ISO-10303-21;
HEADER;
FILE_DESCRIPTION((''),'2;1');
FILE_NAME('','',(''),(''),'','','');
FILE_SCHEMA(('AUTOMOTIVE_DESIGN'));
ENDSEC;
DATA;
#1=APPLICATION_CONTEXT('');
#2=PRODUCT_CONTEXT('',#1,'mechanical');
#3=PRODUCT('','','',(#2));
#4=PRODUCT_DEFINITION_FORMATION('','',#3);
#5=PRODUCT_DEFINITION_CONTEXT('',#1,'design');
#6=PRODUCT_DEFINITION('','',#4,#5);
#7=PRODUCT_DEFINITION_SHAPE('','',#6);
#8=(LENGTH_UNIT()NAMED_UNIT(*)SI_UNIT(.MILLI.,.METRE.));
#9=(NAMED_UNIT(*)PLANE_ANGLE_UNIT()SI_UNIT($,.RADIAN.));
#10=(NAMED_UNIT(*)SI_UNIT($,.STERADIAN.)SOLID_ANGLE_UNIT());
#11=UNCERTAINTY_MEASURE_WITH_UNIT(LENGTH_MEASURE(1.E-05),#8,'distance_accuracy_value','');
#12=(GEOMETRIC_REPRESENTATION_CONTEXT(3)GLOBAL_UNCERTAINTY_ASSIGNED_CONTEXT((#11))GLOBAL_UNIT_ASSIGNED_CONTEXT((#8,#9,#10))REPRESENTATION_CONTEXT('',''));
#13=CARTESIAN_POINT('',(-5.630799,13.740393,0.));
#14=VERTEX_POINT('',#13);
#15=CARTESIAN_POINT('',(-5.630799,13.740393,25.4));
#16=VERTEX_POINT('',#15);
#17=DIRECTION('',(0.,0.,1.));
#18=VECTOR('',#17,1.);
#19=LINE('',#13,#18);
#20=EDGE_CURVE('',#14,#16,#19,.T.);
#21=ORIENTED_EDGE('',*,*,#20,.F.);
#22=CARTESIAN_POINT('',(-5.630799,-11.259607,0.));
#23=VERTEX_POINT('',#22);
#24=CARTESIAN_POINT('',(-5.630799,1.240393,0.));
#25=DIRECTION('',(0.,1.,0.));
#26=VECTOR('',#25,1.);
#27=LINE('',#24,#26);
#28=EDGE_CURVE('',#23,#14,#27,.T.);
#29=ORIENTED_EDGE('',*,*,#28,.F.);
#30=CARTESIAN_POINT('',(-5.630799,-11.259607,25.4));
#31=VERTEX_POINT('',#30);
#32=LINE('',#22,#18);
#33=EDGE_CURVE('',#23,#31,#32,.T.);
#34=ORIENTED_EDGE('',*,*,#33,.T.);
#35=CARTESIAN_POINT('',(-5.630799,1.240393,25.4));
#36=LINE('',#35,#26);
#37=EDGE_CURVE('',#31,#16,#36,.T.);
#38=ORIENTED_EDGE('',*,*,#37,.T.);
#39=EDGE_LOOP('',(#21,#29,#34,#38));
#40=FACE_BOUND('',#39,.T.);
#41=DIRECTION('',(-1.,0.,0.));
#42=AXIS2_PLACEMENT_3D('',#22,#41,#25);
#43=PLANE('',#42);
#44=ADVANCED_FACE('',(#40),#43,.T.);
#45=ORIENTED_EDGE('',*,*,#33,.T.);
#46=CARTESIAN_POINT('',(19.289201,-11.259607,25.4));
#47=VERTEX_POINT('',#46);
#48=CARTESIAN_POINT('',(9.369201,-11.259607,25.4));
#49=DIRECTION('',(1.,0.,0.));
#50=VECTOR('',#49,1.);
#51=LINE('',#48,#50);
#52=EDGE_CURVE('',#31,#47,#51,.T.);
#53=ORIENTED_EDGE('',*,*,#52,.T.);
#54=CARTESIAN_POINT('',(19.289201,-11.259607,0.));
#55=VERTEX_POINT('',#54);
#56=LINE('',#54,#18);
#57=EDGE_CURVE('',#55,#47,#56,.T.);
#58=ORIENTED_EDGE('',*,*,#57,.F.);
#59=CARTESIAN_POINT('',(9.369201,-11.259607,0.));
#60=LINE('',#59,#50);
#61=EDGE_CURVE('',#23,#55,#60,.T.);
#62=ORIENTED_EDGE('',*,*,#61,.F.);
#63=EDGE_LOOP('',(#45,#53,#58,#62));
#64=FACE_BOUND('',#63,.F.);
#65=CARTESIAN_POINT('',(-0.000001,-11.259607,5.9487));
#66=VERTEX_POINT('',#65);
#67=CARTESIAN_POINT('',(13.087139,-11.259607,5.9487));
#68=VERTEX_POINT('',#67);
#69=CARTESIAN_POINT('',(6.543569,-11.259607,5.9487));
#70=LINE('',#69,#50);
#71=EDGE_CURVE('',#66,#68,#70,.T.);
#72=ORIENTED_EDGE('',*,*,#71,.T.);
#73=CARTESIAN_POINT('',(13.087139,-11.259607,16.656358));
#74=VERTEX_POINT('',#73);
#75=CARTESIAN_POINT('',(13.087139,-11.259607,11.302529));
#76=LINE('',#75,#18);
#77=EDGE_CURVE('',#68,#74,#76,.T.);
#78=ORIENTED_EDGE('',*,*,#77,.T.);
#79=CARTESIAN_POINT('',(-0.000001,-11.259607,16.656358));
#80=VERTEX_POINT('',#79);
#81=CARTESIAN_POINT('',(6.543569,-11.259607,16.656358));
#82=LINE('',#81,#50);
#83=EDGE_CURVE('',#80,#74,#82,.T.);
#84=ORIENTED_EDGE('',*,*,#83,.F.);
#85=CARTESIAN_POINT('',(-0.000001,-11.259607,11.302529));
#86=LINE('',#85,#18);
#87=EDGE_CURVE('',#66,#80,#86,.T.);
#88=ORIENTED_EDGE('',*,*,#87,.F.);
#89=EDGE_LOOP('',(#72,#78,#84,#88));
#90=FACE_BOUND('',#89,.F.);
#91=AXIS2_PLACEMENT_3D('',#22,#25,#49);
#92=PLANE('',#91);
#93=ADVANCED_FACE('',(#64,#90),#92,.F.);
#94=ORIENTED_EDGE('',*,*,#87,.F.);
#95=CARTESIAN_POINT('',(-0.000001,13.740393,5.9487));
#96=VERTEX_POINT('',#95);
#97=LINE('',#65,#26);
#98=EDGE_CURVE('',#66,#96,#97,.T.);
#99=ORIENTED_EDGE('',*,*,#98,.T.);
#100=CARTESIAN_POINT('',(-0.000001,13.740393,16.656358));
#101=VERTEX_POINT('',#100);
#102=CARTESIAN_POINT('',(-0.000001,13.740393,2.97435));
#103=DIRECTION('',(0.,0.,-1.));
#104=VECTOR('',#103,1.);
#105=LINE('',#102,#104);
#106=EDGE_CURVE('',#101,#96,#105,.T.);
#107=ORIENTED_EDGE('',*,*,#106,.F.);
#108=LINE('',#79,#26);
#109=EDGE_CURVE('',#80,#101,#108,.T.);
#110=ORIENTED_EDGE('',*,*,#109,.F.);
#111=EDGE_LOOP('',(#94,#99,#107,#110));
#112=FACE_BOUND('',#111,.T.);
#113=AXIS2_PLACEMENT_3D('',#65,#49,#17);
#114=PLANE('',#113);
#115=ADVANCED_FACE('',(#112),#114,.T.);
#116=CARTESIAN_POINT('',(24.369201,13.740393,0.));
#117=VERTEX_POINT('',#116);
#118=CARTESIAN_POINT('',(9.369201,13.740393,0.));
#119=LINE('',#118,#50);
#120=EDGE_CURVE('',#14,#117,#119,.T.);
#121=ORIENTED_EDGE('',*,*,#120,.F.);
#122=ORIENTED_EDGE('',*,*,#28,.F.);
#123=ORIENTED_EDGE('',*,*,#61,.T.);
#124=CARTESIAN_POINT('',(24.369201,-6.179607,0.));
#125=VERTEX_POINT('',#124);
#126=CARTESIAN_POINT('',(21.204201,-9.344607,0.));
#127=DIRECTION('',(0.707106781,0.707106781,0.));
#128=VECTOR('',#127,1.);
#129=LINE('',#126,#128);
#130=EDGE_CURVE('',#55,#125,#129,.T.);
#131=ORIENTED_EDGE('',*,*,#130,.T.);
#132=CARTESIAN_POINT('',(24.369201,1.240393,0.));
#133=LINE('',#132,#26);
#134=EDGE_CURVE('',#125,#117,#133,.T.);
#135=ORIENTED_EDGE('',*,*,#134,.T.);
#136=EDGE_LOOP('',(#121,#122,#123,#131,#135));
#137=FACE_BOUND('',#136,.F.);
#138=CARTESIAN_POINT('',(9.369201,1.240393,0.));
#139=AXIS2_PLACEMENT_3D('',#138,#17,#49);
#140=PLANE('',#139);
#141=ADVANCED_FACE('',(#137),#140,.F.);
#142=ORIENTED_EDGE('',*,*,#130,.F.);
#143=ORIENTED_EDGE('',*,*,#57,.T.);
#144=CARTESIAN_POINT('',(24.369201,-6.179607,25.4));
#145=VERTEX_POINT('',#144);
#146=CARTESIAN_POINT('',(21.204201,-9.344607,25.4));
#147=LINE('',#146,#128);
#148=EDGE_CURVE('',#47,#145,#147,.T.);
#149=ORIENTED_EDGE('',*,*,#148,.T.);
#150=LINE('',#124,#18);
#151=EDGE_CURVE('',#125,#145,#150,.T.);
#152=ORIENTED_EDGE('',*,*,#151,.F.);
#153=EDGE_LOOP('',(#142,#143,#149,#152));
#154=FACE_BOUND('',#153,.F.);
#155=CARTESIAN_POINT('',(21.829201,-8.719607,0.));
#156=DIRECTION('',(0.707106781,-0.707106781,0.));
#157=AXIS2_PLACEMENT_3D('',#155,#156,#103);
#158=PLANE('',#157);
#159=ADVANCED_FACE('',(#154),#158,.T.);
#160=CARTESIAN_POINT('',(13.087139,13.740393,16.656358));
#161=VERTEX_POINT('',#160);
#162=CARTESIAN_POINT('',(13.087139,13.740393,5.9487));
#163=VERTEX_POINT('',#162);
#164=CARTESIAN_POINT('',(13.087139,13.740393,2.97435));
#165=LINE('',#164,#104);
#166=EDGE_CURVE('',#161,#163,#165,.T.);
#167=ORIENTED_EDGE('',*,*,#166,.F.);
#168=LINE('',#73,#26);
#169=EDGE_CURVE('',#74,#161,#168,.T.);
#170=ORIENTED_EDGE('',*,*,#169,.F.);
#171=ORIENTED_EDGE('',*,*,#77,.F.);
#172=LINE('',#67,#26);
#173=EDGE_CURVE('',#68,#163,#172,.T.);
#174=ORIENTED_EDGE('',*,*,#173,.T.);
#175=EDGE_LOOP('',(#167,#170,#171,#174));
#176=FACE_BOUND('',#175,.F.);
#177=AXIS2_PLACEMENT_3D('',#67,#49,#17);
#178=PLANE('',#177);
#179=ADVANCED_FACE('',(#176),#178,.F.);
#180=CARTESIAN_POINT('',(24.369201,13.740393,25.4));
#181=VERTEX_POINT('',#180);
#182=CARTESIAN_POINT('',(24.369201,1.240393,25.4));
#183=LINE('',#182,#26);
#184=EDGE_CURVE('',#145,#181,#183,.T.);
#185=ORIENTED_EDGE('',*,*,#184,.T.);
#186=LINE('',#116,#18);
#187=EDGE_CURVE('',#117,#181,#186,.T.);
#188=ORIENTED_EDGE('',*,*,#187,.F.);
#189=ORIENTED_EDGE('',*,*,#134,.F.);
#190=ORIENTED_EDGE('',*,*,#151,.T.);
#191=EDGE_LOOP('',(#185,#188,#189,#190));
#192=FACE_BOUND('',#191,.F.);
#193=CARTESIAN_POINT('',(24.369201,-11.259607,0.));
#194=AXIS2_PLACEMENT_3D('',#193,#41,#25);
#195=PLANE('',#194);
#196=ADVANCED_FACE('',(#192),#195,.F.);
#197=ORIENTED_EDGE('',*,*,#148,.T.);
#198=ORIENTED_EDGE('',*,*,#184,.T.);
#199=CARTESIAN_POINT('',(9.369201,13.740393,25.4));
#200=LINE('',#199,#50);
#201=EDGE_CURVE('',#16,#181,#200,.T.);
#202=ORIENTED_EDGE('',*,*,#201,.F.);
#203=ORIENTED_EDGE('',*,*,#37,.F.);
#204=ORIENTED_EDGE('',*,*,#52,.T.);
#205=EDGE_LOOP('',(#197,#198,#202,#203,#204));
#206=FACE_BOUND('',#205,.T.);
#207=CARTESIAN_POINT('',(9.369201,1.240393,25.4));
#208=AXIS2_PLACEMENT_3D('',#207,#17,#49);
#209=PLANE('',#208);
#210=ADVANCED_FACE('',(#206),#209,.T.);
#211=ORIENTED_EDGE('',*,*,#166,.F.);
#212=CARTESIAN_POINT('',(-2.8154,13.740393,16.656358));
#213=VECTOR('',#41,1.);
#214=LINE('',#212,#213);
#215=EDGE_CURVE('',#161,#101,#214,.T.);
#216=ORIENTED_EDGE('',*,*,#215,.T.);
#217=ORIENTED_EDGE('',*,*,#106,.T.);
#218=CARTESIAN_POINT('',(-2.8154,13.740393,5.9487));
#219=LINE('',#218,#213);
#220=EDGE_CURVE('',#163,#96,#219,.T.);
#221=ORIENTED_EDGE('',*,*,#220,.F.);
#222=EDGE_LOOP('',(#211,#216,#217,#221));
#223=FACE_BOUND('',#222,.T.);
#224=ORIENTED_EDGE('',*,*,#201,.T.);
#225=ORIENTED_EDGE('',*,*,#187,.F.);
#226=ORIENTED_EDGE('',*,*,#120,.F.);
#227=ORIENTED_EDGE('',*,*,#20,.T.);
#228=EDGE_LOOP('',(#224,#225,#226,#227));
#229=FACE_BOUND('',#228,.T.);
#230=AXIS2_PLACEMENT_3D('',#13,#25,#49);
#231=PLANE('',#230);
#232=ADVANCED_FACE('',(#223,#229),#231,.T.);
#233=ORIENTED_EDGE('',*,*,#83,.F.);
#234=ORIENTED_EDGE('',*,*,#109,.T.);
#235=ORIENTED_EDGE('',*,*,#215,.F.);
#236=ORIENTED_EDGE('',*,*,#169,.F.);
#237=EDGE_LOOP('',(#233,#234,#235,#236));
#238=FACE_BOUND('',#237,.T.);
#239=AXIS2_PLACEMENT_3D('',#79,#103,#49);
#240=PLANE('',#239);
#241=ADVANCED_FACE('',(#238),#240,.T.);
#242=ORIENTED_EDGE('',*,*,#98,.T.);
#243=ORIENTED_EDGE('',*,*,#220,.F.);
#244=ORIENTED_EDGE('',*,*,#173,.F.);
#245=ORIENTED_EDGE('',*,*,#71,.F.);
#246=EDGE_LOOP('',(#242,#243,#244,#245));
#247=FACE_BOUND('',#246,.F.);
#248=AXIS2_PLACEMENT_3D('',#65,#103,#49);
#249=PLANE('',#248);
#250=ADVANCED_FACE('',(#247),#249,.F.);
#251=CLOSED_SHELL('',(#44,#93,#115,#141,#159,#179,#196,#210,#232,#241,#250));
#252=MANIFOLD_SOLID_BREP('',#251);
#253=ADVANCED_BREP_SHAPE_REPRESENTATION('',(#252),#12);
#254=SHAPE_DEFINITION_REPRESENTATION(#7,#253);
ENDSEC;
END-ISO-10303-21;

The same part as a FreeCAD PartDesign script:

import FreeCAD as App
import Part
import Sketcher
from FreeCAD import Vector
Q = App.Units.Quantity


def edges_at(feature, points):
    """Names of the edges that pass closest to the given points."""
    edges = feature.Shape.Edges
    near = lambda p: min(range(len(edges)), key=lambda i: edges[i].distToShape(Part.Vertex(*p))[0])
    return sorted({f"Edge{near(p) + 1}" for p in points})

doc = App.newDocument("Part")
body = doc.addObject("PartDesign::Body", "Body")

# Sketch on XY plane
sketch1 = doc.addObject("Sketcher::SketchObject", "Sketch")
body.addObject(sketch1)
sketch1.AttachmentSupport = (doc.XY_Plane, [""])
sketch1.MapMode = "FlatFace"
sketch1.addGeometry([
    Part.LineSegment(Vector(-5.630799, 13.740393, 0), Vector(-5.630799, -11.259607, 0)),
    Part.LineSegment(Vector(-5.630799, -11.259607, 0), Vector(24.369201, -11.259607, 0)),
    Part.LineSegment(Vector(24.369201, -11.259607, 0), Vector(24.369201, 13.740393, 0)),
    Part.LineSegment(Vector(24.369201, 13.740393, 0), Vector(-5.630799, 13.740393, 0)),
], False)
sketch1.addConstraint([
    Sketcher.Constraint("Coincident", 0, 2, 1, 1),
    Sketcher.Constraint("Coincident", 1, 2, 2, 1),
    Sketcher.Constraint("Coincident", 2, 2, 3, 1),
    Sketcher.Constraint("Coincident", 3, 2, 0, 1),
    Sketcher.Constraint("Vertical", 0),
    Sketcher.Constraint("Horizontal", 1),
    Sketcher.Constraint("Vertical", 2),
    Sketcher.Constraint("Horizontal", 3),
    Sketcher.Constraint("DistanceX", 1, 1, 1, 2, Q("30 mm")),
    Sketcher.Constraint("DistanceY", 0, 2, 0, 1, Q("25 mm")),
    Sketcher.Constraint("DistanceX", 0, 2, -1, 1, Q("5.630799 mm")),
    Sketcher.Constraint("DistanceY", 0, 2, -1, 1, Q("11.259607 mm")),
])
pad1 = doc.addObject("PartDesign::Pad", "Pad")
body.addObject(pad1)
pad1.Profile = sketch1
pad1.Length = Q("1 in")
doc.recompute()

chamfer = doc.addObject("PartDesign::Chamfer", "Chamfer")
body.addObject(chamfer)
chamfer.Base = (pad1, edges_at(pad1, [(24.369, -11.26, 12.7)]))
chamfer.Size = Q("0.2 in")

# Sketch on XZ plane
sketch2 = doc.addObject("Sketcher::SketchObject", "Sketch001")
body.addObject(sketch2)
sketch2.AttachmentSupport = (doc.XZ_Plane, [""])
sketch2.MapMode = "FlatFace"
sketch2.AttachmentOffset = App.Placement(Vector(0, 0, 11.259607), App.Rotation())
sketch2.addGeometry([
    Part.LineSegment(Vector(0, 16.656358, 0), Vector(0, 5.9487, 0)),
    Part.LineSegment(Vector(0, 5.9487, 0), Vector(13.087139, 5.9487, 0)),
    Part.LineSegment(Vector(13.087139, 5.9487, 0), Vector(13.087139, 16.656358, 0)),
    Part.LineSegment(Vector(13.087139, 16.656358, 0), Vector(0, 16.656358, 0)),
], False)
sketch2.addConstraint([
    Sketcher.Constraint("Coincident", 0, 2, 1, 1),
    Sketcher.Constraint("Coincident", 1, 2, 2, 1),
    Sketcher.Constraint("Coincident", 2, 2, 3, 1),
    Sketcher.Constraint("Coincident", 3, 2, 0, 1),
    Sketcher.Constraint("Vertical", 0),
    Sketcher.Constraint("Horizontal", 1),
    Sketcher.Constraint("Vertical", 2),
    Sketcher.Constraint("Horizontal", 3),
    Sketcher.Constraint("PointOnObject", 0, 2, -2),
    Sketcher.Constraint("DistanceX", 1, 1, 1, 2, Q("13.087139 mm")),
    Sketcher.Constraint("DistanceY", 0, 2, 0, 1, Q("10.707659 mm")),
    Sketcher.Constraint("DistanceY", -1, 1, 0, 2, Q("5.9487 mm")),
])
pocket1 = doc.addObject("PartDesign::Pocket", "Pocket")
body.addObject(pocket1)
pocket1.Profile = sketch2
pocket1.Length = Q("1.415 in")

doc.recompute()
